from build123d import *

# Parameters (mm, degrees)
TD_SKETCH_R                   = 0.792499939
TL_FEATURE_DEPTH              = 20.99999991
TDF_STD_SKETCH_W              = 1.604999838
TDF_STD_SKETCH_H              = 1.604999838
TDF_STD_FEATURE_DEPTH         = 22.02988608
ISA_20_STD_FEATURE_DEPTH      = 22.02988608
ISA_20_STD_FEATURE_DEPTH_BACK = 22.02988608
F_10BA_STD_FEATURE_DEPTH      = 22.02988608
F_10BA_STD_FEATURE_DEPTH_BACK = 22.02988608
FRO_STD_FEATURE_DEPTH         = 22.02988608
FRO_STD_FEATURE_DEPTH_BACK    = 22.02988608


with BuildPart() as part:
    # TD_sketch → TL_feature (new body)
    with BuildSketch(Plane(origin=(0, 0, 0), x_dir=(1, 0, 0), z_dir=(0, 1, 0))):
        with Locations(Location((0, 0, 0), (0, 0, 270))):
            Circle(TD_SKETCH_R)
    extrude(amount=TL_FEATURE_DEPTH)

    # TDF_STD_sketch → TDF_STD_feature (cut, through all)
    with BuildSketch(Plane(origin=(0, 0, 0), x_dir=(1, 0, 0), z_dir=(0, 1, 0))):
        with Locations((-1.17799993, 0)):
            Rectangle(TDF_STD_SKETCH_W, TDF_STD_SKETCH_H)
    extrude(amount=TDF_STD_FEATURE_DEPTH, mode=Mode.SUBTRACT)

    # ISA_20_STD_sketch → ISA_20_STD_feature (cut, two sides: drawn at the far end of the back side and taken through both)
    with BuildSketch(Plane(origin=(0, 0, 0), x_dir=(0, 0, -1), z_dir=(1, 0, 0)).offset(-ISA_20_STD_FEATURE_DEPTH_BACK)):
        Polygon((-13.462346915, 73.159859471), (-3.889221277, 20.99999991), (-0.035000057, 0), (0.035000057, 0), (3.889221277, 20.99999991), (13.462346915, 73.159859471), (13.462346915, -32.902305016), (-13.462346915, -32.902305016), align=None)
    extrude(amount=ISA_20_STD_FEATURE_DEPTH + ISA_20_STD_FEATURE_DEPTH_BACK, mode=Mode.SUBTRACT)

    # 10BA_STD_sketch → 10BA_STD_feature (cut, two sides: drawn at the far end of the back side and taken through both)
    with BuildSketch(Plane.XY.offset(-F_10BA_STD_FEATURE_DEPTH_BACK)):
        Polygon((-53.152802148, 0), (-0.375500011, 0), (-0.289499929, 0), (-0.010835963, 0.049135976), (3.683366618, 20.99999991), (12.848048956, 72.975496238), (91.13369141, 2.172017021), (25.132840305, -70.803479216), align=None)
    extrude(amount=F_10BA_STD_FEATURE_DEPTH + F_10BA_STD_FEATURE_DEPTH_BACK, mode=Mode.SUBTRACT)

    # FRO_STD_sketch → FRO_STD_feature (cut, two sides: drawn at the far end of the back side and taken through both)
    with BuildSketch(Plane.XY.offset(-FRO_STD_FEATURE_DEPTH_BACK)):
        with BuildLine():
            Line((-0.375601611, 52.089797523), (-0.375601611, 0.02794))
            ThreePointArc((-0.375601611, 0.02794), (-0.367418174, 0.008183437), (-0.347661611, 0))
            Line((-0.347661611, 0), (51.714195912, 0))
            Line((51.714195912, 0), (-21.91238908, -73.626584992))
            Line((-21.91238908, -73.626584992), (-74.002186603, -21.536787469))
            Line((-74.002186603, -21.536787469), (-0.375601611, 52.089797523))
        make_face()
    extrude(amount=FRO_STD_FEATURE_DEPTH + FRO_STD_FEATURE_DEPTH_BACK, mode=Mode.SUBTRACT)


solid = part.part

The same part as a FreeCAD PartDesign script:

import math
import FreeCAD as App
import Part
import Sketcher
from FreeCAD import Vector
Q = App.Units.Quantity

doc = App.newDocument("Part")
body = doc.addObject("PartDesign::Body", "Body")

# Sketch on XZ plane
sketch1 = doc.addObject("Sketcher::SketchObject", "Sketch")
body.addObject(sketch1)
sketch1.AttachmentSupport = (doc.XZ_Plane, [""])
sketch1.MapMode = "FlatFace"
sketch1.addGeometry(Part.Circle(Vector(0, 0, 0), Vector(0, 0, 1), 0.8), False)
sketch1.addConstraint([
    Sketcher.Constraint("Coincident", 0, 3, -1, 1),
    Sketcher.Constraint("Diameter", 0, 1.585),
])
pad1 = doc.addObject("PartDesign::Pad", "Pad")
body.addObject(pad1)
pad1.Profile = sketch1
pad1.Length = 21
pad1.Reversed = True

# Sketch on XZ plane
sketch2 = doc.addObject("Sketcher::SketchObject", "Sketch001")
body.addObject(sketch2)
sketch2.AttachmentSupport = (doc.XZ_Plane, [""])
sketch2.MapMode = "FlatFace"
sketch2.addGeometry([
    Part.LineSegment(Vector(-2, -0.8, 0), Vector(-2, 0.8, 0)),
    Part.LineSegment(Vector(-2, 0.8, 0), Vector(-0.4, 0.8, 0)),
    Part.LineSegment(Vector(-0.4, 0.8, 0), Vector(-0.4, -0.8, 0)),
    Part.LineSegment(Vector(-0.4, -0.8, 0), Vector(-2, -0.8, 0)),
], False)
sketch2.addConstraint([
    Sketcher.Constraint("Coincident", 0, 2, 1, 1),
    Sketcher.Constraint("Coincident", 1, 2, 2, 1),
    Sketcher.Constraint("Coincident", 2, 2, 3, 1),
    Sketcher.Constraint("Coincident", 3, 2, 0, 1),
    Sketcher.Constraint("Vertical", 0),
    Sketcher.Constraint("Horizontal", 1),
    Sketcher.Constraint("Vertical", 2),
    Sketcher.Constraint("Horizontal", 3),
    Sketcher.Constraint("Equal", 3, 0),
    Sketcher.Constraint("DistanceX", 1, 1, 1, 2, 1.605),
    Sketcher.Constraint("DistanceX", 0, 2, -1, 1, 1.9805),
    Sketcher.Constraint("DistanceY", -1, 1, 0, 2, 0.8025),
])
pocket1 = doc.addObject("PartDesign::Pocket", "Pocket")
body.addObject(pocket1)
pocket1.Profile = sketch2
pocket1.Type = "ThroughAll"

# Sketch on YZ plane
sketch3 = doc.addObject("Sketcher::SketchObject", "Sketch002")
body.addObject(sketch3)
sketch3.AttachmentSupport = (doc.YZ_Plane, [""])
sketch3.MapMode = "FlatFace"
sketch3.addGeometry([
    Part.LineSegment(Vector(21, 3.89, 0), Vector(73.16, 13.46, 0)),  # 0
    Part.LineSegment(Vector(73.16, 13.46, 0), Vector(-32.9, 13.46, 0)),  # 1
    Part.LineSegment(Vector(-32.9, 13.46, 0), Vector(-32.9, -13.46, 0)),  # 2
    Part.LineSegment(Vector(-32.9, -13.46, 0), Vector(73.16, -13.46, 0)),  # 3
    Part.LineSegment(Vector(73.16, -13.46, 0), Vector(21, -3.89, 0)),  # 4
    Part.LineSegment(Vector(21, -3.89, 0), Vector(0, -0.04, 0)),  # 5
    Part.LineSegment(Vector(0, -0.04, 0), Vector(0, 0.04, 0)),  # 6
    Part.LineSegment(Vector(0, 0.04, 0), Vector(21, 3.89, 0)),  # 7
], False)
sketch3.addConstraint([
    Sketcher.Constraint("Coincident", 0, 2, 1, 1),
    Sketcher.Constraint("Coincident", 1, 2, 2, 1),
    Sketcher.Constraint("Coincident", 2, 2, 3, 1),
    Sketcher.Constraint("Coincident", 3, 2, 4, 1),
    Sketcher.Constraint("Coincident", 4, 2, 5, 1),
    Sketcher.Constraint("Coincident", 5, 2, 6, 1),
    Sketcher.Constraint("Coincident", 6, 2, 7, 1),
    Sketcher.Constraint("Coincident", 7, 2, 0, 1),
    Sketcher.Constraint("Horizontal", 1),
    Sketcher.Constraint("Vertical", 2),
    Sketcher.Constraint("Horizontal", 3),
    Sketcher.Constraint("Vertical", 6),
    Sketcher.Constraint("Symmetric", 5, 2, 6, 2, -1, 1),
    Sketcher.Constraint("Symmetric", 0, 2, 3, 2, -1),
    Sketcher.Constraint("Symmetric", 4, 2, 7, 2, -1),
    Sketcher.Constraint("Parallel", 4, 5),
    Sketcher.Constraint("DistanceX", -1, 1, 4, 2, 21.0),
    Sketcher.Constraint("Angle", 0, Q("10.4 deg")),
    Sketcher.Constraint("DistanceY", 6, 1, 6, 2, 0.07),
    Sketcher.Constraint("DistanceX", 1, 2, 1, 1, 106.062164),
    Sketcher.Constraint("DistanceY", 2, 2, 2, 1, 26.924694),
])
pocket2 = doc.addObject("PartDesign::Pocket", "Pocket001")
body.addObject(pocket2)
pocket2.Profile = sketch3
pocket2.Type = "ThroughAll"
pocket2.Midplane = True

# Sketch on XY plane
sketch4 = doc.addObject("Sketcher::SketchObject", "Sketch003")
body.addObject(sketch4)
sketch4.AttachmentSupport = (doc.XY_Plane, [""])
sketch4.MapMode = "FlatFace"
sketch4.addGeometry([
    Part.LineSegment(Vector(-0.29, 0, 0), Vector(-53.15, 0, 0)),  # 0
    Part.LineSegment(Vector(-53.15, 0, 0), Vector(25.13, -70.8, 0)),  # 1
    Part.LineSegment(Vector(25.13, -70.8, 0), Vector(91.13, 2.17, 0)),  # 2
    Part.LineSegment(Vector(91.13, 2.17, 0), Vector(12.85, 72.98, 0)),  # 3
    Part.LineSegment(Vector(12.85, 72.98, 0), Vector(3.68, 21, 0)),  # 4
    Part.LineSegment(Vector(3.68, 21, 0), Vector(-0.01, 0.05, 0)),  # 5
    Part.LineSegment(Vector(-0.01, 0.05, 0), Vector(-0.29, 0, 0)),  # 6
], False)
sketch4.addConstraint([
    Sketcher.Constraint("Coincident", 0, 2, 1, 1),
    Sketcher.Constraint("Coincident", 1, 2, 2, 1),
    Sketcher.Constraint("Coincident", 2, 2, 3, 1),
    Sketcher.Constraint("Coincident", 3, 2, 4, 1),
    Sketcher.Constraint("Coincident", 4, 2, 5, 1),
    Sketcher.Constraint("Coincident", 5, 2, 6, 1),
    Sketcher.Constraint("Coincident", 6, 2, 0, 1),
    Sketcher.Constraint("Horizontal", 0),
    Sketcher.Constraint("PointOnObject", 0, 2, -1),
    Sketcher.Constraint("Perpendicular", 1, 2),
    Sketcher.Constraint("Perpendicular", 2, 3),
    Sketcher.Constraint("Parallel", 4, 5),
    Sketcher.Constraint("Equal", 1, 3),
    Sketcher.Constraint("Angle", 4, Q("-100 deg")),
    Sketcher.Constraint("Angle", 6, Q("-170 deg")),
    Sketcher.Constraint("DistanceY", -1, 1, 4, 2, 21.0),
    Sketcher.Constraint("DistanceX", 6, 2, -1, 1, 0.2895),
    Sketcher.Constraint("DistanceX", 0, 2, 0, 1, 52.863302),
    Sketcher.Constraint("DistanceX", -1, 1, 1, 2, 25.13284),
    Sketcher.Constraint("DistanceY", 1, 2, -1, 1, 70.803479),
    Sketcher.Constraint("DistanceX", -1, 1, 2, 2, 91.133691),
])
pocket3 = doc.addObject("PartDesign::Pocket", "Pocket002")
body.addObject(pocket3)
pocket3.Profile = sketch4
pocket3.Type = "ThroughAll"
pocket3.Midplane = True

# Sketch on XY plane
sketch5 = doc.addObject("Sketcher::SketchObject", "Sketch004")
body.addObject(sketch5)
sketch5.AttachmentSupport = (doc.XY_Plane, [""])
sketch5.MapMode = "FlatFace"
sketch5.addGeometry([
    Part.LineSegment(Vector(-0.376, 0.028, 0), Vector(-0.376, 52.09, 0)),  # 0
    Part.LineSegment(Vector(-0.376, 52.09, 0), Vector(-74.002, -21.537, 0)),  # 1
    Part.LineSegment(Vector(-74.002, -21.537, 0), Vector(-21.912, -73.627, 0)),  # 2
    Part.LineSegment(Vector(-21.912, -73.627, 0), Vector(51.714, 0, 0)),  # 3
    Part.LineSegment(Vector(51.714, 0, 0), Vector(-0.348, 0, 0)),  # 4
    Part.ArcOfCircle(Part.Circle(Vector(-0.348, 0.028, 0), Vector(0, 0, 1), 0.028), math.radians(-180), math.radians(-90)),  # 5
], False)
sketch5.addConstraint([
    Sketcher.Constraint("Coincident", 0, 2, 1, 1),
    Sketcher.Constraint("Coincident", 1, 2, 2, 1),
    Sketcher.Constraint("Coincident", 2, 2, 3, 1),
    Sketcher.Constraint("Coincident", 3, 2, 4, 1),
    Sketcher.Constraint("Tangent", 4, 2, 5, 2),
    Sketcher.Constraint("Tangent", 5, 1, 0, 1),
    Sketcher.Constraint("Vertical", 0),
    Sketcher.Constraint("Horizontal", 4),
    Sketcher.Constraint("PointOnObject", 3, 2, -1),
    Sketcher.Constraint("Perpendicular", 1, 2),
    Sketcher.Constraint("Perpendicular", 2, 3),
    Sketcher.Constraint("Equal", 4, 0),
    Sketcher.Constraint("Equal", 1, 3),
    Sketcher.Constraint("Radius", 5, 0.02794),
    Sketcher.Constraint("Distance", 2, 73.666098),
    Sketcher.Constraint("DistanceX", 0, 2, -1, 1, 0.375602),
    Sketcher.Constraint("DistanceX", 2, 2, -1, 1, 21.912389),
])
pocket4 = doc.addObject("PartDesign::Pocket", "Pocket003")
body.addObject(pocket4)
pocket4.Profile = sketch5
pocket4.Type = "ThroughAll"
pocket4.Midplane = True

doc.recompute()
